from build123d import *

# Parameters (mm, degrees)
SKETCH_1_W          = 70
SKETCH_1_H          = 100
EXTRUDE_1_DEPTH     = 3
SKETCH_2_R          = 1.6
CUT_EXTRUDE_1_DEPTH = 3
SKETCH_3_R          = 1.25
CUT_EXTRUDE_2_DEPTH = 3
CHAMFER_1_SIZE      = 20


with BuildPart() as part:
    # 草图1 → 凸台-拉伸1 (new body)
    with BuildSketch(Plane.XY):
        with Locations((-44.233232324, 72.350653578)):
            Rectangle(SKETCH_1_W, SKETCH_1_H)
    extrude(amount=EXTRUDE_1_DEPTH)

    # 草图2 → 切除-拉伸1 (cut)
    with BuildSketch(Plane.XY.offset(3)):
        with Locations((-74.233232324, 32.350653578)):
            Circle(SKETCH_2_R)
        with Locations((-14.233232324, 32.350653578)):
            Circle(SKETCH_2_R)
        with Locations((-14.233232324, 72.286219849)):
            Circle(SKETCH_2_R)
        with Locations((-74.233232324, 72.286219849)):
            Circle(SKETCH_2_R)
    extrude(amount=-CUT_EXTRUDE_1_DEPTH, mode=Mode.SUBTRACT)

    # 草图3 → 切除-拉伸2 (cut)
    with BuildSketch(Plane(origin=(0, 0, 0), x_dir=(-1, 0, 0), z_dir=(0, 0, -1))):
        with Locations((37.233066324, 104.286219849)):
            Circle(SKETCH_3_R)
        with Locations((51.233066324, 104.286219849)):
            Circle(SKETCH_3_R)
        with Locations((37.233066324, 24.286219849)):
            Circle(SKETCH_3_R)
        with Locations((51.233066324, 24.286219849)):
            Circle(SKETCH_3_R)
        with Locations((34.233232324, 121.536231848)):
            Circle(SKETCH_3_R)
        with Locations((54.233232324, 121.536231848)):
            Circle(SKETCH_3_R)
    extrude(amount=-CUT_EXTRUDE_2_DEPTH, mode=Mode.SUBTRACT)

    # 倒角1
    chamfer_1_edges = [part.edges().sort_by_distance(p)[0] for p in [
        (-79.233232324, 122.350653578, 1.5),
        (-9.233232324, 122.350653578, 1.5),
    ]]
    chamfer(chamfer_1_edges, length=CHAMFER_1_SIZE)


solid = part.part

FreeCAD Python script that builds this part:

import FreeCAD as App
import Part
import Sketcher


def edges_at(feature, points):
    """Names of the edges that pass closest to the given points."""
    edges = feature.Shape.Edges
    near = lambda p: min(range(len(edges)), key=lambda i: edges[i].distToShape(Part.Vertex(*p))[0])
    return sorted({f"Edge{near(p) + 1}" for p in points})

doc = App.newDocument("Part")
body = doc.addObject("PartDesign::Body", "Body")

# Sketch on XY plane
sketch1 = doc.addObject("Sketcher::SketchObject", "Sketch")
body.addObject(sketch1)
sketch1.AttachmentSupport = (doc.XY_Plane, [""])
sketch1.MapMode = "FlatFace"
sketch1.addGeometry([
    Part.LineSegment(App.Vector(-79.233232, 122.350654, 0), App.Vector(-79.233232, 22.350654, 0)),
    Part.LineSegment(App.Vector(-79.233232, 22.350654, 0), App.Vector(-9.233232, 22.350654, 0)),
    Part.LineSegment(App.Vector(-9.233232, 22.350654, 0), App.Vector(-9.233232, 122.350654, 0)),
    Part.LineSegment(App.Vector(-9.233232, 122.350654, 0), App.Vector(-79.233232, 122.350654, 0)),
], False)
sketch1.addConstraint([
    Sketcher.Constraint("Coincident", 0, 2, 1, 1),
    Sketcher.Constraint("Coincident", 1, 2, 2, 1),
    Sketcher.Constraint("Coincident", 2, 2, 3, 1),
    Sketcher.Constraint("Coincident", 3, 2, 0, 1),
    Sketcher.Constraint("Vertical", 0),
    Sketcher.Constraint("Horizontal", 1),
    Sketcher.Constraint("Vertical", 2),
    Sketcher.Constraint("Horizontal", 3),
    Sketcher.Constraint("DistanceX", 1, 1, 1, 2, 70.0),
    Sketcher.Constraint("DistanceY", 0, 2, 0, 1, 100.0),
    Sketcher.Constraint("DistanceX", 0, 2, -1, 1, 79.233232),
    Sketcher.Constraint("DistanceY", -1, 1, 0, 2, 22.350654),
])
pad1 = doc.addObject("PartDesign::Pad", "Pad")
body.addObject(pad1)
pad1.Profile = sketch1
pad1.Length = 3

# Sketch on XY plane
sketch2 = doc.addObject("Sketcher::SketchObject", "Sketch001")
body.addObject(sketch2)
sketch2.AttachmentSupport = (doc.XY_Plane, [""])
sketch2.MapMode = "FlatFace"
sketch2.AttachmentOffset = App.Placement(App.Vector(0, 0, 3), App.Rotation())
sketch2.addGeometry([
    Part.Circle(App.Vector(-74.233232, 32.350654, 0), App.Vector(0, 0, 1), 1.6),
    Part.Circle(App.Vector(-14.233232, 32.350654, 0), App.Vector(0, 0, 1), 1.6),
    Part.Circle(App.Vector(-14.233232, 72.28622, 0), App.Vector(0, 0, 1), 1.6),
    Part.Circle(App.Vector(-74.233232, 72.28622, 0), App.Vector(0, 0, 1), 1.6),
], False)
sketch2.addConstraint([
    Sketcher.Constraint("Equal", 0, 1),
    Sketcher.Constraint("Equal", 1, 2),
    Sketcher.Constraint("Equal", 2, 3),
    Sketcher.Constraint("Horizontal", 0, 3, 1, 3),
    Sketcher.Constraint("Horizontal", 2, 3, 3, 3),
    Sketcher.Constraint("Vertical", 1, 3, 2, 3),
    Sketcher.Constraint("Vertical", 0, 3, 3, 3),
    Sketcher.Constraint("Diameter", 0, 3.2),
    Sketcher.Constraint("DistanceX", 0, 3, 1, 3, 60.0),
    Sketcher.Constraint("DistanceY", -1, 1, 2, 3, 72.28622),
    Sketcher.Constraint("DistanceX", 0, 3, -1, 1, 74.233232),
    Sketcher.Constraint("DistanceY", -1, 1, 0, 3, 32.350654),
])
pocket1 = doc.addObject("PartDesign::Pocket", "Pocket")
body.addObject(pocket1)
pocket1.Profile = sketch2
pocket1.Length = 3

# Sketch on XY plane
sketch3 = doc.addObject("Sketcher::SketchObject", "Sketch002")
body.addObject(sketch3)
sketch3.AttachmentSupport = (doc.XY_Plane, [""])
sketch3.MapMode = "FlatFace"
sketch3.addGeometry([
    Part.Circle(App.Vector(-37.233066, 104.28622, 0), App.Vector(0, 0, 1), 1.25),  # 0
    Part.Circle(App.Vector(-51.233066, 104.28622, 0), App.Vector(0, 0, 1), 1.25),  # 1
    Part.Circle(App.Vector(-37.233066, 24.28622, 0), App.Vector(0, 0, 1), 1.25),  # 2
    Part.Circle(App.Vector(-51.233066, 24.28622, 0), App.Vector(0, 0, 1), 1.25),  # 3
    Part.Circle(App.Vector(-34.233232, 121.536232, 0), App.Vector(0, 0, 1), 1.25),  # 4
    Part.Circle(App.Vector(-54.233232, 121.536232, 0), App.Vector(0, 0, 1), 1.25),  # 5
], False)
sketch3.addConstraint([
    Sketcher.Constraint("Equal", 0, 1),
    Sketcher.Constraint("Equal", 1, 2),
    Sketcher.Constraint("Equal", 2, 3),
    Sketcher.Constraint("Equal", 3, 4),
    Sketcher.Constraint("Equal", 4, 5),
    Sketcher.Constraint("Horizontal", 0, 3, 1, 3),
    Sketcher.Constraint("Horizontal", 2, 3, 3, 3),
    Sketcher.Constraint("Horizontal", 4, 3, 5, 3),
    Sketcher.Constraint("Vertical", 0, 3, 2, 3),
    Sketcher.Constraint("Vertical", 1, 3, 3, 3),
    Sketcher.Constraint("Diameter", 0, 2.5),
    Sketcher.Constraint("DistanceX", 1, 3, 0, 3, 14.0),
    Sketcher.Constraint("DistanceY", 2, 3, 0, 3, 80.0),
    Sketcher.Constraint("DistanceX", 5, 3, 4, 3, 20.0),
    Sketcher.Constraint("DistanceY", -1, 1, 0, 3, 104.28622),
    Sketcher.Constraint("DistanceY", -1, 1, 4, 3, 121.536232),
    Sketcher.Constraint("DistanceX", 0, 3, -1, 1, 37.233066),
    Sketcher.Constraint("DistanceX", 4, 3, -1, 1, 34.233232),
])
pocket2 = doc.addObject("PartDesign::Pocket", "Pocket001")
body.addObject(pocket2)
pocket2.Profile = sketch3
pocket2.Length = 3
pocket2.Reversed = True
doc.recompute()

chamfer = doc.addObject("PartDesign::Chamfer", "Chamfer")
body.addObject(chamfer)
chamfer.Base = (pocket2, edges_at(pocket2, [(-79.233, 122.351, 1.5), (-9.233, 122.351, 1.5)]))
chamfer.Size = 20

doc.recompute()
